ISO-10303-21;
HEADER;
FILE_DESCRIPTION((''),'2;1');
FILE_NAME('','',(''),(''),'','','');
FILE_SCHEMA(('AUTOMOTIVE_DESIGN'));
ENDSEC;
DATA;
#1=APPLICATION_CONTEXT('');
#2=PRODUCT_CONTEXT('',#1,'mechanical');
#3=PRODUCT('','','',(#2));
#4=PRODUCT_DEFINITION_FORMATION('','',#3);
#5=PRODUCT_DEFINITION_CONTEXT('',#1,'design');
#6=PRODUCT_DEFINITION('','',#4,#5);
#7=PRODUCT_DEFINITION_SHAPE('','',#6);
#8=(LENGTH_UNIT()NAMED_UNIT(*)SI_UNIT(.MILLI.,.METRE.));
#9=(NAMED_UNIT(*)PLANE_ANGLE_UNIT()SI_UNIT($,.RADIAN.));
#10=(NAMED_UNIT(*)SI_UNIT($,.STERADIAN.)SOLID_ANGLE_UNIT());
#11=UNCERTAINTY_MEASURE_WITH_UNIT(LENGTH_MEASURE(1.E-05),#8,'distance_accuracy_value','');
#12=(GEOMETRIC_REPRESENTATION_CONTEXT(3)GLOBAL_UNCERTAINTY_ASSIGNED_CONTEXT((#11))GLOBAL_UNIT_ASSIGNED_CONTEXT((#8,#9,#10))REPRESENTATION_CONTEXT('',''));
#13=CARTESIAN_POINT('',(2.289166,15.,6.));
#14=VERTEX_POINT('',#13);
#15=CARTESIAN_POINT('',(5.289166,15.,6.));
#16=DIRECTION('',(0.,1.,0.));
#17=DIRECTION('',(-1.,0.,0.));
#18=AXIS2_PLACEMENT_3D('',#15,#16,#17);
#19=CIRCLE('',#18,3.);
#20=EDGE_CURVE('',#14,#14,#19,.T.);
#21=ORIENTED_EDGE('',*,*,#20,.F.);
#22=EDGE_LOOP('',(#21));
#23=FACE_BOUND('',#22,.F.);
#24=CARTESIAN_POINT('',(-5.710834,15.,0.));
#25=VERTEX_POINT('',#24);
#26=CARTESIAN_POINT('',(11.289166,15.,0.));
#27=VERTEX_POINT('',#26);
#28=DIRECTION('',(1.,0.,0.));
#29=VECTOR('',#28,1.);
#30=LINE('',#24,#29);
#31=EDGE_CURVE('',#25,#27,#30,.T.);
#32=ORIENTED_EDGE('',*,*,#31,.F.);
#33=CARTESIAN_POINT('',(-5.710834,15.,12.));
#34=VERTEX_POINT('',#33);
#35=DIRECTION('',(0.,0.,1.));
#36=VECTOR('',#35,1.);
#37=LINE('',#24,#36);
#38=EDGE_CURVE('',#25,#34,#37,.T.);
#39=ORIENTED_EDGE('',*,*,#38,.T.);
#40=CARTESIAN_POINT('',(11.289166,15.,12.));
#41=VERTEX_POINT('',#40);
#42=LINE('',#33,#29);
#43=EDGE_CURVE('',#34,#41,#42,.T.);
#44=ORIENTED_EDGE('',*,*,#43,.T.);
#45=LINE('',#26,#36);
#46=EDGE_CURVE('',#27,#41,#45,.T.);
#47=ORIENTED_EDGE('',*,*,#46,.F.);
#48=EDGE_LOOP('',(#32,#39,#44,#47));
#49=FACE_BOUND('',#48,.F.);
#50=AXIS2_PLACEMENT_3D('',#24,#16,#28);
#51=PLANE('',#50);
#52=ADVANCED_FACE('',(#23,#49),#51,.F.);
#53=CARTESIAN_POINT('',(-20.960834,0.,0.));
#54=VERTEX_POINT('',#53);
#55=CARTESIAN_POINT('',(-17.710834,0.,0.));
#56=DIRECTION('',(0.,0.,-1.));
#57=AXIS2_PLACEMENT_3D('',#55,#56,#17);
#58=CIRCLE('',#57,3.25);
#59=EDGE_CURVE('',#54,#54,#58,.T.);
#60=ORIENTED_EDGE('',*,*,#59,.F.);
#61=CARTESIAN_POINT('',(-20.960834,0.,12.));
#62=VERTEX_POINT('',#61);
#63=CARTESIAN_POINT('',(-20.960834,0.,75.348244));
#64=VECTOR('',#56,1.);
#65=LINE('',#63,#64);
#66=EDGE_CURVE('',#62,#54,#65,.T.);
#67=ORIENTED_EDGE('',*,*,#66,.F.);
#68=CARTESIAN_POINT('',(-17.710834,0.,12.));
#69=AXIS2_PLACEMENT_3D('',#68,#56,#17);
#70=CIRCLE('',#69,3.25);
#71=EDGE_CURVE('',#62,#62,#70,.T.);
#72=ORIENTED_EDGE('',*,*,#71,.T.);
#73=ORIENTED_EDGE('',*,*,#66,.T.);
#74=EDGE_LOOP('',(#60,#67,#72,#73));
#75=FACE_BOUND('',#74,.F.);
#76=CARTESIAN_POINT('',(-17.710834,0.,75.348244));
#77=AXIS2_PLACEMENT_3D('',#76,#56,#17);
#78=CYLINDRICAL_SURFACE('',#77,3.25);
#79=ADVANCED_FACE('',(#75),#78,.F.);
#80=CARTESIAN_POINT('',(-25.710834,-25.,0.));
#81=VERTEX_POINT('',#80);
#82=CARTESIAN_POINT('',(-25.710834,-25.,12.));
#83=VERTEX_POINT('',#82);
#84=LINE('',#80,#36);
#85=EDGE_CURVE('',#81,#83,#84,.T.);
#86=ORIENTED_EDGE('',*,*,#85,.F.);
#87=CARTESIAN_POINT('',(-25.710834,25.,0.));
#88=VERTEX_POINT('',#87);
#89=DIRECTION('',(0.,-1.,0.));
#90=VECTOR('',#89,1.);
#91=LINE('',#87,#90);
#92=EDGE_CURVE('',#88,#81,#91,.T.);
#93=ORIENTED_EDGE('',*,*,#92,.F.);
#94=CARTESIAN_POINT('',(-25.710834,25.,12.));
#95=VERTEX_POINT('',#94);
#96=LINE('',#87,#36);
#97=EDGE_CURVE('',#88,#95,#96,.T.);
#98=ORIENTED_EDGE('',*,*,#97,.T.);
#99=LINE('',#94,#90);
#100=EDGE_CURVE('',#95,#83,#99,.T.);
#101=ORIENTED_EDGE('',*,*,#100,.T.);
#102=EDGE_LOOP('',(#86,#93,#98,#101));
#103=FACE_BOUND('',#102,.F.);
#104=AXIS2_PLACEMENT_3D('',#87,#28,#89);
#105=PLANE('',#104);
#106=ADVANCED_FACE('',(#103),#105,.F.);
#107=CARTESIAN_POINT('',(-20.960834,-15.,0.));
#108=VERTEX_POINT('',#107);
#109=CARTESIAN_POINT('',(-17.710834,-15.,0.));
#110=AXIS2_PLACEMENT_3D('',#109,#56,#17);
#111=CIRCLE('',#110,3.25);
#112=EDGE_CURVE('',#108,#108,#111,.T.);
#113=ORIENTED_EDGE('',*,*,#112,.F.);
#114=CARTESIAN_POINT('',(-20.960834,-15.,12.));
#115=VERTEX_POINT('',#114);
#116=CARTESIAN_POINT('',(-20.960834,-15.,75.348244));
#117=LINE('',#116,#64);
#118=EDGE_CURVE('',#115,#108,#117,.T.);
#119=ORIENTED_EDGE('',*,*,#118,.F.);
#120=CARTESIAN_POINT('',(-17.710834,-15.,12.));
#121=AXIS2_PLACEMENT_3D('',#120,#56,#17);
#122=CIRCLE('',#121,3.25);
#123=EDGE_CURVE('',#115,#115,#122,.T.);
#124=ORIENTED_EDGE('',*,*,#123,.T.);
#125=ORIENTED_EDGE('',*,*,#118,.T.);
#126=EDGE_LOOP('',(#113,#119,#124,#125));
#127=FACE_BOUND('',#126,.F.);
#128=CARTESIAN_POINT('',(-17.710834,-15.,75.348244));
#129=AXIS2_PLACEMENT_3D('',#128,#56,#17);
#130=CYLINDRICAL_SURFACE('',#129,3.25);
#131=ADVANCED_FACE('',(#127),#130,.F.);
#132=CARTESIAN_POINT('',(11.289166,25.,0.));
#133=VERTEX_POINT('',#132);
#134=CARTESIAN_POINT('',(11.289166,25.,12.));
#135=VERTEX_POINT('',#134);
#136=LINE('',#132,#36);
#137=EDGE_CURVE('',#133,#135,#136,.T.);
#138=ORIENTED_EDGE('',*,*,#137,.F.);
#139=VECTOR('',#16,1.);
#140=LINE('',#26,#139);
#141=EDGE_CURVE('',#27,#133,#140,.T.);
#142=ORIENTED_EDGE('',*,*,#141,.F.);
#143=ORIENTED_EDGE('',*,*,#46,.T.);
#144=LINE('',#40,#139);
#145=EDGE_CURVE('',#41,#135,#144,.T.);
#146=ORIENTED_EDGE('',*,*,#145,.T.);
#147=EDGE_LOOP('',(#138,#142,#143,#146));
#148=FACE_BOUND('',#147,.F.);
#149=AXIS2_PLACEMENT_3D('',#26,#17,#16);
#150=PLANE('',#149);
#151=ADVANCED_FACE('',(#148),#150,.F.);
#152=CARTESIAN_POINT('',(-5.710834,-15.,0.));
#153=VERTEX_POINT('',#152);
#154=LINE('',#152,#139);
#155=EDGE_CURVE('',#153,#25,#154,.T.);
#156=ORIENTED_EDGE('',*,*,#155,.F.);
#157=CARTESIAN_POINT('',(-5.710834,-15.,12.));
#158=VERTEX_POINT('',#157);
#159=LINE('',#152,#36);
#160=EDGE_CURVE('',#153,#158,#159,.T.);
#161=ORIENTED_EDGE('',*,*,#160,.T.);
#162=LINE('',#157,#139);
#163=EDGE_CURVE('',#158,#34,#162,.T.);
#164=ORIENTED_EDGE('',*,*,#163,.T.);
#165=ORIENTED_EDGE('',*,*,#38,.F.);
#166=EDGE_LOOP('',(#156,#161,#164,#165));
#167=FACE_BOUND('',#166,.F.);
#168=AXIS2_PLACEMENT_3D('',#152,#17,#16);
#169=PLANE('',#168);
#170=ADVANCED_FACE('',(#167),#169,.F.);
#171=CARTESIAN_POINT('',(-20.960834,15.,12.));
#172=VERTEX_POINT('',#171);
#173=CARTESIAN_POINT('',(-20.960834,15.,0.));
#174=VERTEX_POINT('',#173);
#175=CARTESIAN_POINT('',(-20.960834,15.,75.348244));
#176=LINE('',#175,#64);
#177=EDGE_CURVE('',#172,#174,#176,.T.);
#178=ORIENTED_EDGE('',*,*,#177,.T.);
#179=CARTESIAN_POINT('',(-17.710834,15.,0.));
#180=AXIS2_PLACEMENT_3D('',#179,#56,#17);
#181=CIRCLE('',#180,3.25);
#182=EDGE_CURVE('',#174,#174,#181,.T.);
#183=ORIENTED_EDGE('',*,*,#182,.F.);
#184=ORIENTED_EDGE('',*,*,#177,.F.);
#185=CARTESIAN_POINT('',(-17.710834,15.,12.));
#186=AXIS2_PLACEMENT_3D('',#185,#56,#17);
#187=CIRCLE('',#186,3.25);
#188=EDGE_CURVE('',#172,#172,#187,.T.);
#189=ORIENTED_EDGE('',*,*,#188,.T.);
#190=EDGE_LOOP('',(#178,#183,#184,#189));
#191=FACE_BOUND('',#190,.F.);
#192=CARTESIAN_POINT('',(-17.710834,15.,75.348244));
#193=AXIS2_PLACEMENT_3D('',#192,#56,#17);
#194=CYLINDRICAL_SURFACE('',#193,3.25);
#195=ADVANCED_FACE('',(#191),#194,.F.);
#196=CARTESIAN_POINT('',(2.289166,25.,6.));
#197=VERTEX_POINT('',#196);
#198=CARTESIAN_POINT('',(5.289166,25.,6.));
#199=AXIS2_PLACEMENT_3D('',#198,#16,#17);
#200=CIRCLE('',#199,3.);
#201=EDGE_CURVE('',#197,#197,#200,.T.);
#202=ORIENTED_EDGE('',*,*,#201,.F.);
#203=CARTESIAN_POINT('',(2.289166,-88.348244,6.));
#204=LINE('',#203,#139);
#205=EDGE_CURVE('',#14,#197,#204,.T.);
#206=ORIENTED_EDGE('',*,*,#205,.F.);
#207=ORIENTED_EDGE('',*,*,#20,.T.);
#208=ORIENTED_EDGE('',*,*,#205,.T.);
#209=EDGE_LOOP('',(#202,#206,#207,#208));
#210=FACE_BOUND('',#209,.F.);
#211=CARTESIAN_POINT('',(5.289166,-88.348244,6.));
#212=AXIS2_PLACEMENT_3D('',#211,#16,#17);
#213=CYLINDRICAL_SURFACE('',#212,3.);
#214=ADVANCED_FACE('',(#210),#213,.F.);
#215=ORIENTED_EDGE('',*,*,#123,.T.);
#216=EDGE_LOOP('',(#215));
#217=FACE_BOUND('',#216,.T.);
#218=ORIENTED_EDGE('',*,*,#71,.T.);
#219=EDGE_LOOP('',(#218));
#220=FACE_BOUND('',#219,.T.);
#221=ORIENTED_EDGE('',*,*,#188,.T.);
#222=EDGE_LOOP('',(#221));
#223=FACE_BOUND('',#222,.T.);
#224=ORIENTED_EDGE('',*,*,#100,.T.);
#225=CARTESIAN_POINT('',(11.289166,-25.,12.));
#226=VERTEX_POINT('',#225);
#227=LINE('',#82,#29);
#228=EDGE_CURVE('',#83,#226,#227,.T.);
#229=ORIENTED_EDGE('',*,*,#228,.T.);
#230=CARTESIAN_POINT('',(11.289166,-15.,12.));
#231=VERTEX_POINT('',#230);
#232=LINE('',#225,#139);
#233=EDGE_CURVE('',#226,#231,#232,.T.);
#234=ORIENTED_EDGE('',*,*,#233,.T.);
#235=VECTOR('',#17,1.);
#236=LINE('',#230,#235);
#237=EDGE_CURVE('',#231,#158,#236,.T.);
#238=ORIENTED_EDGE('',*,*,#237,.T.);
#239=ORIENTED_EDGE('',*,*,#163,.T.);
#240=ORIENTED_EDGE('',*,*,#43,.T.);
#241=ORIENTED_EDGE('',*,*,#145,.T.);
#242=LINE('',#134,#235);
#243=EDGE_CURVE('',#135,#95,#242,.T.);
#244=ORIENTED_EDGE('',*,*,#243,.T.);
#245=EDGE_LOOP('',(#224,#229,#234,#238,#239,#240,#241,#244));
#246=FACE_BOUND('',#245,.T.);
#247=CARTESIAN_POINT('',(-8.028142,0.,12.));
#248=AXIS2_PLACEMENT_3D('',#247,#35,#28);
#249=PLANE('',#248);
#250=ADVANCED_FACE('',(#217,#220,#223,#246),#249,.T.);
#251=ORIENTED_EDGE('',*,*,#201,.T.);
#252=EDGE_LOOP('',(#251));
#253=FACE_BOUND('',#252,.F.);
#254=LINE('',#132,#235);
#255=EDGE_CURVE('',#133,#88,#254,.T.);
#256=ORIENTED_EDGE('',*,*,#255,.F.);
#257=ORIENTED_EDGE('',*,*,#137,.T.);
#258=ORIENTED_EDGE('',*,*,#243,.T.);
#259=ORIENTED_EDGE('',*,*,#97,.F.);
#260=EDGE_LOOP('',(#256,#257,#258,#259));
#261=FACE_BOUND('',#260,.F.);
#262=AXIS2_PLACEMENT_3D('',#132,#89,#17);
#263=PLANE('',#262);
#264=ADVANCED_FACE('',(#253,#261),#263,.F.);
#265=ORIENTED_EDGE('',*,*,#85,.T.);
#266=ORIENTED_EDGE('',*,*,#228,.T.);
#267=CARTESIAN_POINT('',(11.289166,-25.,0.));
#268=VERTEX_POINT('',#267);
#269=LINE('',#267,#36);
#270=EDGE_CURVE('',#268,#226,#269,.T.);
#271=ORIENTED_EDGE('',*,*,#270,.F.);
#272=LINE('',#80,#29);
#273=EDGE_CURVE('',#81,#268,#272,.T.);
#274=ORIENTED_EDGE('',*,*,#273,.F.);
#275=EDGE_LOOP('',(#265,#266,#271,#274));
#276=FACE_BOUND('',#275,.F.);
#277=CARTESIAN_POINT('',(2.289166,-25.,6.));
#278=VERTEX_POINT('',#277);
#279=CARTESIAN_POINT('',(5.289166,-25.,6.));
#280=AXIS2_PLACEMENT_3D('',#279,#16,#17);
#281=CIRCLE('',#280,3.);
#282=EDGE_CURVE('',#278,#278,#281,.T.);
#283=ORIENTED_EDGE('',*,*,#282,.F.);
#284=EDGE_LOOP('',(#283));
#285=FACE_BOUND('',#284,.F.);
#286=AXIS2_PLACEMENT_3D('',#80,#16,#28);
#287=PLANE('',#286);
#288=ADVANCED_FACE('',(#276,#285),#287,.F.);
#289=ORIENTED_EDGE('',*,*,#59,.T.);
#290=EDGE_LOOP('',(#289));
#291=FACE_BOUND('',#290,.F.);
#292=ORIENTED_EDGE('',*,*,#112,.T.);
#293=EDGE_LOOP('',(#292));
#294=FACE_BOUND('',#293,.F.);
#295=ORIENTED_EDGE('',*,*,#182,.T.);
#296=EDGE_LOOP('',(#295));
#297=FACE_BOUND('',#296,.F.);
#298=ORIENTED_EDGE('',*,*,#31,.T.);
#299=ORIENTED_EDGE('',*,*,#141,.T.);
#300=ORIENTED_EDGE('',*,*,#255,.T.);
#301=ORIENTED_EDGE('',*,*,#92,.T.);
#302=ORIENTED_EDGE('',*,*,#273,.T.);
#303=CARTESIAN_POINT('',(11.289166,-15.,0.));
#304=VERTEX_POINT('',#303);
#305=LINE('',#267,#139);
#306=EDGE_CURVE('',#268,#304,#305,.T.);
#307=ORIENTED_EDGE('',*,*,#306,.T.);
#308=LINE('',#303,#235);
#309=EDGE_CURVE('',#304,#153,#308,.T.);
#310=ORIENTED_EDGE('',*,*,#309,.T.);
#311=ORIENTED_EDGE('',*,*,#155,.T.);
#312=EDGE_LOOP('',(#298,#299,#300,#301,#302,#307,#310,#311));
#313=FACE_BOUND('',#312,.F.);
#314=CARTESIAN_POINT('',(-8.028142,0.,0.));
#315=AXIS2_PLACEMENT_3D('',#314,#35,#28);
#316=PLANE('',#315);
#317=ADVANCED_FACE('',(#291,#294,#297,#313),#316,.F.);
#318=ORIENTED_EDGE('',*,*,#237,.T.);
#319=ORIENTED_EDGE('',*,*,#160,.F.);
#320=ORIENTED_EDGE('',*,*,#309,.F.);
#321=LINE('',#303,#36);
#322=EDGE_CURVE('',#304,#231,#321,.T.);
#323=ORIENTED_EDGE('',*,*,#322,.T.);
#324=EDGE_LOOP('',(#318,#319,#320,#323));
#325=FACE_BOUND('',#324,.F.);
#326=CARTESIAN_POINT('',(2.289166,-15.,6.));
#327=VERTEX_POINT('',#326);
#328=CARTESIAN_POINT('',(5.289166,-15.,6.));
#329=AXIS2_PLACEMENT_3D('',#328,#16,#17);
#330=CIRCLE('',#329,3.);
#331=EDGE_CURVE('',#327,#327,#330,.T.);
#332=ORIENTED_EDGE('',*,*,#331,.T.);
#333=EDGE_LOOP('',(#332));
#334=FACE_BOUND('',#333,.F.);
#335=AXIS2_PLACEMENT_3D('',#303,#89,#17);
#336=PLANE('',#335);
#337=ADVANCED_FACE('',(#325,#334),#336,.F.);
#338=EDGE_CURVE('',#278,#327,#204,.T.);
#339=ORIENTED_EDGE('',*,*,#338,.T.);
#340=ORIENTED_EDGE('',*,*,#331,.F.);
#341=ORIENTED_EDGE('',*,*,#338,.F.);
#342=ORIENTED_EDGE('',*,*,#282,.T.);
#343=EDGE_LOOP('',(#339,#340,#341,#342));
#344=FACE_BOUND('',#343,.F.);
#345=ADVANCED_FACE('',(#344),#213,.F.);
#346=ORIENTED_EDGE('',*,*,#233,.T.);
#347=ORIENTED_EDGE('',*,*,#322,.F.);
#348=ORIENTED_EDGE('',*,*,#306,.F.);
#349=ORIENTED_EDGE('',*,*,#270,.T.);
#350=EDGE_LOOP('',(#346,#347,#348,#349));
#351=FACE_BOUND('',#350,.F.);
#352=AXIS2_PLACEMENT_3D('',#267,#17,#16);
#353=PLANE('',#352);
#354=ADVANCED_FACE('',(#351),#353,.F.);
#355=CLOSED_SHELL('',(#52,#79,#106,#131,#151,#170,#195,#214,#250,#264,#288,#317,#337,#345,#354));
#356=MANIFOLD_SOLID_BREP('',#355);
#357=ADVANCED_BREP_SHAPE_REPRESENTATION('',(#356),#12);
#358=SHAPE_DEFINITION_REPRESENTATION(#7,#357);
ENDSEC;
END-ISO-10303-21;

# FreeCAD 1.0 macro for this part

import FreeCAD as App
import Part
import Sketcher
from FreeCAD import Vector

doc = App.newDocument("Part")
body = doc.addObject("PartDesign::Body", "Body")

# Sketch on XY plane
sketch1 = body.newObject("Sketcher::SketchObject", "Sketch")
sketch1.AttachmentSupport = (doc.getObject("XY_Plane"), [""])
sketch1.MapMode = "FlatFace"
sketch1.addGeometry([
    Part.LineSegment(Vector(-25.710834, 25, 0), Vector(-25.710834, -25, 0)),  # 0
    Part.LineSegment(Vector(-25.710834, -25, 0), Vector(11.289166, -25, 0)),  # 1
    Part.LineSegment(Vector(11.289166, -25, 0), Vector(11.289166, -15, 0)),  # 2
    Part.LineSegment(Vector(11.289166, -15, 0), Vector(-5.710834, -15, 0)),  # 3
    Part.LineSegment(Vector(-5.710834, -15, 0), Vector(-5.710834, 15, 0)),  # 4
    Part.LineSegment(Vector(-5.710834, 15, 0), Vector(11.289166, 15, 0)),  # 5
    Part.LineSegment(Vector(11.289166, 15, 0), Vector(11.289166, 25, 0)),  # 6
    Part.LineSegment(Vector(11.289166, 25, 0), Vector(-25.710834, 25, 0)),  # 7
], False)
sketch1.addConstraint([
    Sketcher.Constraint("Coincident", 0, 2, 1, 1),
    Sketcher.Constraint("Coincident", 1, 2, 2, 1),
    Sketcher.Constraint("Coincident", 2, 2, 3, 1),
    Sketcher.Constraint("Coincident", 3, 2, 4, 1),
    Sketcher.Constraint("Coincident", 4, 2, 5, 1),
    Sketcher.Constraint("Coincident", 5, 2, 6, 1),
    Sketcher.Constraint("Coincident", 6, 2, 7, 1),
    Sketcher.Constraint("Coincident", 7, 2, 0, 1),
    Sketcher.Constraint("Vertical", 0),
    Sketcher.Constraint("Horizontal", 1),
    Sketcher.Constraint("Vertical", 2),
    Sketcher.Constraint("Horizontal", 3),
    Sketcher.Constraint("Vertical", 4),
    Sketcher.Constraint("Horizontal", 5),
    Sketcher.Constraint("Vertical", 6),
    Sketcher.Constraint("Horizontal", 7),
    Sketcher.Constraint("Symmetric", 2, 2, 5, 2, -1),
    Sketcher.Constraint("Equal", 2, 6),
    Sketcher.Constraint("DistanceX", 1, 1, 1, 2, 37.0),
    Sketcher.Constraint("DistanceX", 3, 2, 3, 1, 17.0),
    Sketcher.Constraint("DistanceY", 0, 2, 0, 1, 50.0),
    Sketcher.Constraint("DistanceY", 2, 1, 2, 2, 10.0),
    Sketcher.Constraint("DistanceX", 0, 2, -1, 1, 25.710834),
])
pad1 = body.newObject("PartDesign::Pad", "Pad")
pad1.Profile = sketch1
pad1.Length = 12

# Sketch on XY plane
sketch2 = body.newObject("Sketcher::SketchObject", "Sketch001")
sketch2.AttachmentSupport = (doc.getObject("XY_Plane"), [""])
sketch2.MapMode = "FlatFace"
sketch2.AttachmentOffset = App.Placement(Vector(0, 0, 12), App.Rotation())
sketch2.addGeometry([
    Part.Circle(Vector(-17.710834, -15, 0), Vector(0, 0, 1), 3.25),
    Part.Circle(Vector(-17.710834, 0, 0), Vector(0, 0, 1), 3.25),
    Part.Circle(Vector(-17.710834, 15, 0), Vector(0, 0, 1), 3.25),
], False)
sketch2.addConstraint([
    Sketcher.Constraint("Equal", 0, 1),
    Sketcher.Constraint("Equal", 1, 2),
    Sketcher.Constraint("Symmetric", 0, 3, 2, 3, -1),
    Sketcher.Constraint("PointOnObject", 1, 3, -1),
    Sketcher.Constraint("Vertical", 0, 3, 1, 3),
    Sketcher.Constraint("Diameter", 0, 6.5),
    Sketcher.Constraint("DistanceY", 0, 3, -1, 1, 15.0),
    Sketcher.Constraint("DistanceX", 0, 3, -1, 1, 17.710834),
])
doc.recompute()
hole = body.newObject("PartDesign::Hole", "Hole")
hole.Profile = sketch2
hole.ThreadType = "None"
hole.Diameter = 6.5
hole.DepthType = "ThroughAll"

# Sketch on XZ plane
sketch3 = body.newObject("Sketcher::SketchObject", "Sketch002")
sketch3.AttachmentSupport = (doc.getObject("XZ_Plane"), [""])
sketch3.MapMode = "FlatFace"
sketch3.AttachmentOffset = App.Placement(Vector(0, 0, 25), App.Rotation())
sketch3.addGeometry(Part.Circle(Vector(5.289166, 6, 0), Vector(0, 0, 1), 3), False)
sketch3.addConstraint([
    Sketcher.Constraint("Diameter", 0, 6.0),
    Sketcher.Constraint("DistanceY", -1, 1, 0, 3, 6.0),
    Sketcher.Constraint("DistanceX", -1, 1, 0, 3, 5.289166),
])
doc.recompute()
hole2 = body.newObject("PartDesign::Hole", "Hole001")
hole2.Profile = sketch3
hole2.ThreadType = "None"
hole2.Diameter = 6
hole2.DepthType = "ThroughAll"

doc.recompute()
